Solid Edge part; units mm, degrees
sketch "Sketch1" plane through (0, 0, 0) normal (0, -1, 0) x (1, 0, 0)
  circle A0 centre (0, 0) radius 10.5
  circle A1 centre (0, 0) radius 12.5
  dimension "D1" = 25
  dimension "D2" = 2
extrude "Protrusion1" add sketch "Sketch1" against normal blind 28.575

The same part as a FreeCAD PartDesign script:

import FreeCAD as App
import Part
import Sketcher

V = App.Vector
Q = App.Units.Quantity

doc = App.newDocument("Part")
params = doc.addObject("Spreadsheet::Sheet", "Params")
for row, (alias, value) in enumerate([
    ("sketch1_diameter", "25 mm"),
    ("sketch1_diameter2", "21 mm"),
    ("pad1_length", "28.575 mm"),
], start=1):
    params.set(f"A{row}", alias)
    params.set(f"B{row}", "=" + value)
    params.setAlias(f"B{row}", alias)

body = doc.addObject("PartDesign::Body", "Body")

# Sketch on XZ plane
sketch1 = body.newObject("Sketcher::SketchObject", "Sketch")
sketch1.AttachmentSupport = (doc.getObject("XZ_Plane"), [""])
sketch1.MapMode = "FlatFace"
sketch1.addGeometry(Part.Circle(V(0, 0, 0), V(0, 0, 1), 12.5), False)
sketch1.addGeometry(Part.Circle(V(0, 0, 0), V(0, 0, 1), 10.5), False)
sketch1.addConstraint(Sketcher.Constraint("Coincident", 0, 3, -1, 1))
sketch1.addConstraint(Sketcher.Constraint("Coincident", 1, 3, -1, 1))
sketch1.addConstraint(Sketcher.Constraint("Diameter", 0, Q("25 mm")))
sketch1.addConstraint(Sketcher.Constraint("Diameter", 1, Q("21 mm")))
sketch1.setExpression("Constraints[2]", "Params.sketch1_diameter")
sketch1.setExpression("Constraints[3]", "Params.sketch1_diameter2")
pad1 = body.newObject("PartDesign::Pad", "Pad")
pad1.Profile = sketch1
pad1.setExpression("Length", "Params.pad1_length")
pad1.Reversed = True

doc.recompute()
